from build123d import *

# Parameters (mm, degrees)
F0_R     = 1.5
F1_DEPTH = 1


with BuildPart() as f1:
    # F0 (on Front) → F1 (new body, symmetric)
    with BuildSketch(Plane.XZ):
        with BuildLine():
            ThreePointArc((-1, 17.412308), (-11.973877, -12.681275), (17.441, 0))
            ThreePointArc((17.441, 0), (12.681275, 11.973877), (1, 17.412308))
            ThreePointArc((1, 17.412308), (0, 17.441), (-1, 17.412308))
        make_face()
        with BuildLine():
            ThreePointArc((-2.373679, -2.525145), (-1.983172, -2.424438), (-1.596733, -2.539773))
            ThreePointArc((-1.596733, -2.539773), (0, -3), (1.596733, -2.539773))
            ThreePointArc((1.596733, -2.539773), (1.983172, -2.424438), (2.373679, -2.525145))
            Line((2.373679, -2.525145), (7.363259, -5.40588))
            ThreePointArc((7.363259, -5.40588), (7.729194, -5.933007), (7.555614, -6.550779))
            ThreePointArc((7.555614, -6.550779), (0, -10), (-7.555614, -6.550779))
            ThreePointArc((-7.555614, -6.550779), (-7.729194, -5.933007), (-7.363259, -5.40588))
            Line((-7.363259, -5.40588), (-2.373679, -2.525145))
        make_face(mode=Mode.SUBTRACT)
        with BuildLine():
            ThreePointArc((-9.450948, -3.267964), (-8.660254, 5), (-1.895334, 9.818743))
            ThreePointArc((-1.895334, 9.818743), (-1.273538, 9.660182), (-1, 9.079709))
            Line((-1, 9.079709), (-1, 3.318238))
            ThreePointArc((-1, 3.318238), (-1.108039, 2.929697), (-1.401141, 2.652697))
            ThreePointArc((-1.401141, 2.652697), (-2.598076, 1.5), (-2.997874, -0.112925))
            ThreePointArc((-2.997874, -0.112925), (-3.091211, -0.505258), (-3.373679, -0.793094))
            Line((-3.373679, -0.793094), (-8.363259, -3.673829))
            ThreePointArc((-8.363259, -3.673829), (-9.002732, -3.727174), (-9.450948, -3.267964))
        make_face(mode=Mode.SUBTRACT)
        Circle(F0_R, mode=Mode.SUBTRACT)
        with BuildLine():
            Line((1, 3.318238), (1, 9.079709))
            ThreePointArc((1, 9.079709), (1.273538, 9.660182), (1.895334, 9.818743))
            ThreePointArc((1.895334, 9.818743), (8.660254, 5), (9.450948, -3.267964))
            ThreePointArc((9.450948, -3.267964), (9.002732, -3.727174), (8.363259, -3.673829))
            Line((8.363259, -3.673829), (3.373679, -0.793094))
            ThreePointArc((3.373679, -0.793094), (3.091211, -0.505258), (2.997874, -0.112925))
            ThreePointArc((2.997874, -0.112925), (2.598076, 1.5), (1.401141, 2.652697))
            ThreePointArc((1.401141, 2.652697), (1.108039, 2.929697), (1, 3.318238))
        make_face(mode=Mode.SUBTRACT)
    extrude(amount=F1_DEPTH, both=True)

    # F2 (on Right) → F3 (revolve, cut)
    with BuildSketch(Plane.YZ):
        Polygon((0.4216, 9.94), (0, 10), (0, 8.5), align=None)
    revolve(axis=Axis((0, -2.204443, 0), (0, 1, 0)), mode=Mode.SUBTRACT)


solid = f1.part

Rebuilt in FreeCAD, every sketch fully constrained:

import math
import FreeCAD as App
import Part
import Sketcher

V = App.Vector
Q = App.Units.Quantity

doc = App.newDocument("Part")
body = doc.addObject("PartDesign::Body", "Body")

# Sketch on XZ plane
sketch1 = doc.addObject("Sketcher::SketchObject", "Sketch")
body.addObject(sketch1)
sketch1.AttachmentSupport = (doc.XZ_Plane, [""])
sketch1.MapMode = "FlatFace"
sketch1.addGeometry(Part.ArcOfCircle(Part.Circle(V(0, 0, 0), V(0, 0, 1), 17.441), math.radians(93.286924), math.radians(360)), False)
sketch1.addGeometry(Part.ArcOfCircle(Part.Circle(V(-0.000001, -0.000001, 0), V(0, 0, 1), 17.441001), math.radians(0.000003), math.radians(86.713076)), False)
sketch1.addGeometry(Part.ArcOfCircle(Part.Circle(V(0, 0.000194, 0), V(0, 0, 1), 17.440806), math.radians(86.713041), math.radians(93.286959)), False)
sketch1.addGeometry(Part.LineSegment(V(-7.363259, -5.40588, 0), V(-2.373679, -2.525145, 0)), False)
sketch1.addGeometry(Part.ArcOfCircle(Part.Circle(V(-1.997341, -3.176976, 0), V(0, 0, 1), 0.752671), math.radians(57.842541), math.radians(120.000234)), False)
sketch1.addGeometry(Part.ArcOfCircle(Part.Circle(V(0, 0.000003, 0), V(0, 0, 1), 3.000003), math.radians(-122.15718), math.radians(-57.84282)), False)
sketch1.addGeometry(Part.ArcOfCircle(Part.Circle(V(1.997341, -3.176976, 0), V(0, 0, 1), 0.752671), math.radians(59.999766), math.radians(122.157459)), False)
sketch1.addGeometry(Part.LineSegment(V(2.373679, -2.525145, 0), V(7.363259, -5.40588, 0)), False)
sketch1.addGeometry(Part.ArcOfCircle(Part.Circle(V(6.986921, -6.057717, 0), V(0, 0, 1), 0.752676), math.radians(-40.925581), math.radians(60.000017)), False)
sketch1.addGeometry(Part.ArcOfCircle(Part.Circle(V(0, 0.000001, 0), V(0, 0, 1), 10.000001), math.radians(-139.07444), math.radians(-40.92556)), False)
sketch1.addGeometry(Part.ArcOfCircle(Part.Circle(V(-6.986921, -6.057717, 0), V(0, 0, 1), 0.752676), math.radians(119.999983), math.radians(220.925581)), False)
sketch1.addGeometry(Part.ArcOfCircle(Part.Circle(V(-8.739597, -3.021991, 0), V(0, 0, 1), 0.752677), math.radians(-160.925501), math.radians(-60.00005)), False)
sketch1.addGeometry(Part.ArcOfCircle(Part.Circle(V(0.000001, -0.000001, 0), V(0, 0, 1), 10.000001), math.radians(100.925559), math.radians(199.07444)), False)
sketch1.addGeometry(Part.ArcOfCircle(Part.Circle(V(-1.752676, 9.07971, 0), V(0, 0, 1), 0.752676), math.radians(-0.000058), math.radians(100.9256)), False)
sketch1.addGeometry(Part.LineSegment(V(-1, 9.079709, 0), V(-1, 3.318238, 0)), False)
sketch1.addGeometry(Part.ArcOfCircle(Part.Circle(V(-1.752678, 3.318239, 0), V(0, 0, 1), 0.752678), math.radians(-62.157135), math.radians(-0.00006)), False)
sketch1.addGeometry(Part.ArcOfCircle(Part.Circle(V(0, 0, 0), V(0, 0, 1), 3), math.radians(117.842779), math.radians(182.157209)), False)
sketch1.addGeometry(Part.ArcOfCircle(Part.Circle(V(-3.750016, -0.141258, 0), V(0, 0, 1), 0.752675), math.radians(-60.000072), math.radians(2.157271)), False)
sketch1.addGeometry(Part.LineSegment(V(-3.373679, -0.793094, 0), V(-8.363259, -3.673829, 0)), False)
sketch1.addGeometry(Part.Circle(V(0, 0, 0), V(0, 0, 1), 1.5), False)
sketch1.addGeometry(Part.ArcOfCircle(Part.Circle(V(1.752678, 3.318239, 0), V(0, 0, 1), 0.752678), math.radians(-179.99994), math.radians(-117.842865)), False)
sketch1.addGeometry(Part.LineSegment(V(1, 3.318238, 0), V(1, 9.079709, 0)), False)
sketch1.addGeometry(Part.ArcOfCircle(Part.Circle(V(1.752676, 9.07971, 0), V(0, 0, 1), 0.752676), math.radians(79.0744), math.radians(180.000058)), False)
sketch1.addGeometry(Part.ArcOfCircle(Part.Circle(V(-0.000001, -0.000001, 0), V(0, 0, 1), 10.000001), math.radians(-19.07444), math.radians(79.074441)), False)
sketch1.addGeometry(Part.ArcOfCircle(Part.Circle(V(8.739597, -3.021991, 0), V(0, 0, 1), 0.752677), math.radians(-119.99995), math.radians(-19.074499)), False)
sketch1.addGeometry(Part.LineSegment(V(8.363259, -3.673829, 0), V(3.373679, -0.793094, 0)), False)
sketch1.addGeometry(Part.ArcOfCircle(Part.Circle(V(3.750016, -0.141258, 0), V(0, 0, 1), 0.752675), math.radians(177.842729), math.radians(240.000072)), False)
sketch1.addGeometry(Part.ArcOfCircle(Part.Circle(V(0, 0, 0), V(0, 0, 1), 3), math.radians(-2.157209), math.radians(62.157221)), False)
sketch1.addConstraint(Sketcher.Constraint("Coincident", 0, 2, 1, 1))
sketch1.addConstraint(Sketcher.Constraint("Coincident", 1, 2, 2, 1))
sketch1.addConstraint(Sketcher.Constraint("Coincident", 2, 2, 0, 1))
sketch1.addConstraint(Sketcher.Constraint("Coincident", 3, 2, 4, 2))
sketch1.addConstraint(Sketcher.Constraint("Coincident", 4, 1, 5, 1))
sketch1.addConstraint(Sketcher.Constraint("Coincident", 5, 2, 6, 2))
sketch1.addConstraint(Sketcher.Constraint("Coincident", 6, 1, 7, 1))
sketch1.addConstraint(Sketcher.Constraint("Coincident", 7, 2, 8, 2))
sketch1.addConstraint(Sketcher.Constraint("Coincident", 8, 1, 9, 2))
sketch1.addConstraint(Sketcher.Constraint("Coincident", 9, 1, 10, 2))
sketch1.addConstraint(Sketcher.Constraint("Coincident", 10, 1, 3, 1))
sketch1.addConstraint(Sketcher.Constraint("Coincident", 11, 1, 12, 2))
sketch1.addConstraint(Sketcher.Constraint("Coincident", 12, 1, 13, 2))
sketch1.addConstraint(Sketcher.Constraint("Coincident", 13, 1, 14, 1))
sketch1.addConstraint(Sketcher.Constraint("Coincident", 14, 2, 15, 2))
sketch1.addConstraint(Sketcher.Constraint("Coincident", 15, 1, 16, 1))
sketch1.addConstraint(Sketcher.Constraint("Coincident", 16, 2, 17, 2))
sketch1.addConstraint(Sketcher.Constraint("Coincident", 17, 1, 18, 1))
sketch1.addConstraint(Sketcher.Constraint("Coincident", 18, 2, 11, 2))
sketch1.addConstraint(Sketcher.Constraint("Coincident", 20, 1, 21, 1))
sketch1.addConstraint(Sketcher.Constraint("Coincident", 21, 2, 22, 2))
sketch1.addConstraint(Sketcher.Constraint("Coincident", 22, 1, 23, 2))
sketch1.addConstraint(Sketcher.Constraint("Coincident", 23, 1, 24, 2))
sketch1.addConstraint(Sketcher.Constraint("Coincident", 24, 1, 25, 1))
sketch1.addConstraint(Sketcher.Constraint("Coincident", 25, 2, 26, 2))
sketch1.addConstraint(Sketcher.Constraint("Coincident", 26, 1, 27, 1))
sketch1.addConstraint(Sketcher.Constraint("Coincident", 27, 2, 20, 2))
sketch1.addConstraint(Sketcher.Constraint("Vertical", 14))
sketch1.addConstraint(Sketcher.Constraint("Vertical", 21))
sketch1.addConstraint(Sketcher.Constraint("Coincident", 0, 3, -1, 1))
sketch1.addConstraint(Sketcher.Constraint("Coincident", 1, 3, -1, 1))
sketch1.addConstraint(Sketcher.Constraint("Coincident", 5, 3, -1, 1))
sketch1.addConstraint(Sketcher.Constraint("Coincident", 9, 3, -1, 1))
sketch1.addConstraint(Sketcher.Constraint("Coincident", 12, 3, -1, 1))
sketch1.addConstraint(Sketcher.Constraint("Coincident", 16, 3, -1, 1))
sketch1.addConstraint(Sketcher.Constraint("Coincident", 19, 3, -1, 1))
sketch1.addConstraint(Sketcher.Constraint("Coincident", 23, 3, -1, 1))
sketch1.addConstraint(Sketcher.Constraint("Coincident", 27, 3, -1, 1))
sketch1.addConstraint(Sketcher.Constraint("PointOnObject", 0, 2, -1))
sketch1.addConstraint(Sketcher.Constraint("Diameter", 19, Q("3 mm")))
sketch1.addConstraint(Sketcher.Constraint("Radius", 9, Q("10.000001 mm")))
sketch1.addConstraint(Sketcher.Constraint("Radius", 12, Q("10.000001 mm")))
sketch1.addConstraint(Sketcher.Constraint("Radius", 16, Q("3 mm")))
sketch1.addConstraint(Sketcher.Constraint("Radius", 23, Q("10.000001 mm")))
sketch1.addConstraint(Sketcher.Constraint("Radius", 27, Q("3 mm")))
sketch1.addConstraint(Sketcher.Constraint("DistanceX", -1, 1, 1, 2, Q("1 mm")))
sketch1.addConstraint(Sketcher.Constraint("DistanceX", 2, 2, -1, 1, Q("1 mm")))
sketch1.addConstraint(Sketcher.Constraint("DistanceX", 13, 1, -1, 1, Q("1 mm")))
sketch1.addConstraint(Sketcher.Constraint("DistanceX", -1, 1, 20, 1, Q("1 mm")))
sketch1.addConstraint(Sketcher.Constraint("Radius", 0, Q("17.441 mm")))
sketch1.addConstraint(Sketcher.Constraint("DistanceX", 17, 1, 3, 2, Q("1 mm")))
sketch1.addConstraint(Sketcher.Constraint("DistanceX", 18, 2, 10, 1, Q("1 mm")))
sketch1.addConstraint(Sketcher.Constraint("DistanceX", 7, 2, 24, 1, Q("1 mm")))
sketch1.addConstraint(Sketcher.Constraint("DistanceX", 6, 1, 25, 2, Q("1 mm")))
sketch1.addConstraint(Sketcher.Constraint("Radius", 4, Q("0.752671 mm")))
sketch1.addConstraint(Sketcher.Constraint("Radius", 6, Q("0.752671 mm")))
sketch1.addConstraint(Sketcher.Constraint("Radius", 2, Q("17.440806 mm")))
sketch1.addConstraint(Sketcher.Constraint("Radius", 5, Q("3.000003 mm")))
sketch1.addConstraint(Sketcher.Constraint("Radius", 8, Q("0.752676 mm")))
sketch1.addConstraint(Sketcher.Constraint("Radius", 10, Q("0.752676 mm")))
sketch1.addConstraint(Sketcher.Constraint("Radius", 11, Q("0.752677 mm")))
sketch1.addConstraint(Sketcher.Constraint("Radius", 13, Q("0.752676 mm")))
sketch1.addConstraint(Sketcher.Constraint("Radius", 15, Q("0.752678 mm")))
sketch1.addConstraint(Sketcher.Constraint("Radius", 17, Q("0.752675 mm")))
sketch1.addConstraint(Sketcher.Constraint("Radius", 20, Q("0.752678 mm")))
sketch1.addConstraint(Sketcher.Constraint("Radius", 22, Q("0.752676 mm")))
sketch1.addConstraint(Sketcher.Constraint("Radius", 24, Q("0.752677 mm")))
sketch1.addConstraint(Sketcher.Constraint("Radius", 26, Q("0.752675 mm")))
sketch1.addConstraint(Sketcher.Constraint("DistanceY", 14, 2, 14, 1, Q("5.761471 mm")))
sketch1.addConstraint(Sketcher.Constraint("DistanceY", 21, 1, 21, 2, Q("5.761471 mm")))
sketch1.addConstraint(Sketcher.Constraint("DistanceY", 8, 1, 7, 2, Q("1.144899 mm")))
sketch1.addConstraint(Sketcher.Constraint("DistanceY", 9, 1, 10, 1, Q("1.144899 mm")))
sketch1.addConstraint(Sketcher.Constraint("Distance", 3, Q("5.761471 mm")))
sketch1.addConstraint(Sketcher.Constraint("Distance", 7, Q("5.761471 mm")))
sketch1.addConstraint(Sketcher.Constraint("Distance", 18, Q("5.761471 mm")))
sketch1.addConstraint(Sketcher.Constraint("Distance", 25, Q("5.761471 mm")))
sketch1.addConstraint(Sketcher.Constraint("DistanceX", 4, 3, -1, 1, Q("1.997341 mm")))
sketch1.addConstraint(Sketcher.Constraint("DistanceX", -1, 1, 6, 3, Q("1.997341 mm")))
sketch1.addConstraint(Sketcher.Constraint("DistanceX", -1, 1, 8, 3, Q("6.986921 mm")))
sketch1.addConstraint(Sketcher.Constraint("DistanceX", 10, 3, -1, 1, Q("6.986921 mm")))
sketch1.addConstraint(Sketcher.Constraint("DistanceY", 11, 3, -1, 1, Q("3.021991 mm")))
sketch1.addConstraint(Sketcher.Constraint("DistanceY", 24, 3, -1, 1, Q("3.021991 mm")))
sketch1.addConstraint(Sketcher.Constraint("DistanceX", 3, 2, -1, 1, Q("2.373679 mm")))
sketch1.addConstraint(Sketcher.Constraint("DistanceX", -1, 1, 6, 1, Q("2.373679 mm")))
sketch1.addConstraint(Sketcher.Constraint("DistanceX", 11, 1, -1, 1, Q("9.450948 mm")))
sketch1.addConstraint(Sketcher.Constraint("DistanceY", -1, 1, 13, 1, Q("9.079709 mm")))
sketch1.addConstraint(Sketcher.Constraint("DistanceX", 15, 1, -1, 1, Q("1.401141 mm")))
sketch1.addConstraint(Sketcher.Constraint("DistanceY", -1, 1, 20, 1, Q("3.318238 mm")))
sketch1.addConstraint(Sketcher.Constraint("DistanceX", -1, 1, 23, 1, Q("9.450948 mm")))
sketch1.addConstraint(Sketcher.Constraint("DistanceX", -1, 1, 27, 2, Q("1.401141 mm")))
sketch1.addConstraint(Sketcher.Constraint("DistanceY", 5, 2, 6, 1, Q("0.014628 mm")))
sketch1.addConstraint(Sketcher.Constraint("DistanceX", 9, 1, 4, 1, Q("5.958881 mm")))
sketch1.addConstraint(Sketcher.Constraint("DistanceX", 12, 1, 22, 3, Q("3.64801 mm")))
sketch1.addConstraint(Sketcher.Constraint("DistanceX", 17, 3, 16, 2, Q("0.752142 mm")))
sketch1.addConstraint(Sketcher.Constraint("DistanceX", 13, 3, 22, 1, Q("3.64801 mm")))
sketch1.addConstraint(Sketcher.Constraint("DistanceX", 26, 1, 26, 3, Q("0.752142 mm")))
pad1 = doc.addObject("PartDesign::Pad", "Pad")
body.addObject(pad1)
pad1.Profile = sketch1
pad1.Length = 2
pad1.Midplane = True

# Sketch on YZ plane
sketch2 = doc.addObject("Sketcher::SketchObject", "Sketch001")
body.addObject(sketch2)
sketch2.AttachmentSupport = (doc.YZ_Plane, [""])
sketch2.MapMode = "FlatFace"
sketch2.addGeometry(Part.LineSegment(V(0.42, 9.94, 0), V(0, 10, 0)), False)
sketch2.addGeometry(Part.LineSegment(V(0, 10, 0), V(0, 8.5, 0)), False)
sketch2.addGeometry(Part.LineSegment(V(0, 8.5, 0), V(0.42, 9.94, 0)), False)
sketch2.addConstraint(Sketcher.Constraint("Coincident", 0, 2, 1, 1))
sketch2.addConstraint(Sketcher.Constraint("Coincident", 1, 2, 2, 1))
sketch2.addConstraint(Sketcher.Constraint("Coincident", 2, 2, 0, 1))
sketch2.addConstraint(Sketcher.Constraint("Vertical", 1))
sketch2.addConstraint(Sketcher.Constraint("PointOnObject", 0, 2, -2))
sketch2.addConstraint(Sketcher.Constraint("DistanceY", 1, 2, 1, 1, Q("1.5 mm")))
sketch2.addConstraint(Sketcher.Constraint("DistanceY", -1, 1, 0, 2, Q("10 mm")))
sketch2.addConstraint(Sketcher.Constraint("DistanceY", -1, 1, 2, 2, Q("9.94 mm")))
sketch2.addConstraint(Sketcher.Constraint("DistanceX", -1, 1, 2, 2, Q("0.4216 mm")))
groove = doc.addObject("PartDesign::Groove", "Groove")
body.addObject(groove)
groove.Profile = sketch2
groove.ReferenceAxis = (sketch2, ["H_Axis"])
groove.Angle = 360

doc.recompute()
